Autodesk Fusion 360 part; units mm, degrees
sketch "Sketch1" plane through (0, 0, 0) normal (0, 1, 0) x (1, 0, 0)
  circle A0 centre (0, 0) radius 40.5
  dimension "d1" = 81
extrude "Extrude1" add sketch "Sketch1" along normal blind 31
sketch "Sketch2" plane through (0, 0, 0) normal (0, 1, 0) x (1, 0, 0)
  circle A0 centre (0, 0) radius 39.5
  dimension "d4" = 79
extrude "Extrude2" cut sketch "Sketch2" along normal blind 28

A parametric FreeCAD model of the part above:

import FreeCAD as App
import Part
import Sketcher
Q = App.Units.Quantity

doc = App.newDocument("Part")
body = doc.addObject("PartDesign::Body", "Body")

# Sketch on XZ plane
sketch1 = body.newObject("Sketcher::SketchObject", "Sketch")
sketch1.AttachmentSupport = (doc.getObject("XZ_Plane"), [""])
sketch1.MapMode = "FlatFace"
sketch1.addGeometry(Part.Circle(App.Vector(0, 0, 0), App.Vector(0, 0, 1), 40), False)
sketch1.addConstraint([
    Sketcher.Constraint("Coincident", 0, 3, -1, 1),
    Sketcher.Constraint("Diameter", 0, Q("81 mm")),
])
pad1 = body.newObject("PartDesign::Pad", "Pad")
pad1.Profile = sketch1
pad1.Length = 31
pad1.Reversed = True

# Sketch on XZ plane
sketch2 = body.newObject("Sketcher::SketchObject", "Sketch001")
sketch2.AttachmentSupport = (doc.getObject("XZ_Plane"), [""])
sketch2.MapMode = "FlatFace"
sketch2.addGeometry(Part.Circle(App.Vector(0, 0, 0), App.Vector(0, 0, 1), 40), False)
sketch2.addConstraint([
    Sketcher.Constraint("Coincident", 0, 3, -1, 1),
    Sketcher.Constraint("Diameter", 0, Q("79 mm")),
])
pocket1 = body.newObject("PartDesign::Pocket", "Pocket")
pocket1.Profile = sketch2
pocket1.Length = 28

doc.recompute()
